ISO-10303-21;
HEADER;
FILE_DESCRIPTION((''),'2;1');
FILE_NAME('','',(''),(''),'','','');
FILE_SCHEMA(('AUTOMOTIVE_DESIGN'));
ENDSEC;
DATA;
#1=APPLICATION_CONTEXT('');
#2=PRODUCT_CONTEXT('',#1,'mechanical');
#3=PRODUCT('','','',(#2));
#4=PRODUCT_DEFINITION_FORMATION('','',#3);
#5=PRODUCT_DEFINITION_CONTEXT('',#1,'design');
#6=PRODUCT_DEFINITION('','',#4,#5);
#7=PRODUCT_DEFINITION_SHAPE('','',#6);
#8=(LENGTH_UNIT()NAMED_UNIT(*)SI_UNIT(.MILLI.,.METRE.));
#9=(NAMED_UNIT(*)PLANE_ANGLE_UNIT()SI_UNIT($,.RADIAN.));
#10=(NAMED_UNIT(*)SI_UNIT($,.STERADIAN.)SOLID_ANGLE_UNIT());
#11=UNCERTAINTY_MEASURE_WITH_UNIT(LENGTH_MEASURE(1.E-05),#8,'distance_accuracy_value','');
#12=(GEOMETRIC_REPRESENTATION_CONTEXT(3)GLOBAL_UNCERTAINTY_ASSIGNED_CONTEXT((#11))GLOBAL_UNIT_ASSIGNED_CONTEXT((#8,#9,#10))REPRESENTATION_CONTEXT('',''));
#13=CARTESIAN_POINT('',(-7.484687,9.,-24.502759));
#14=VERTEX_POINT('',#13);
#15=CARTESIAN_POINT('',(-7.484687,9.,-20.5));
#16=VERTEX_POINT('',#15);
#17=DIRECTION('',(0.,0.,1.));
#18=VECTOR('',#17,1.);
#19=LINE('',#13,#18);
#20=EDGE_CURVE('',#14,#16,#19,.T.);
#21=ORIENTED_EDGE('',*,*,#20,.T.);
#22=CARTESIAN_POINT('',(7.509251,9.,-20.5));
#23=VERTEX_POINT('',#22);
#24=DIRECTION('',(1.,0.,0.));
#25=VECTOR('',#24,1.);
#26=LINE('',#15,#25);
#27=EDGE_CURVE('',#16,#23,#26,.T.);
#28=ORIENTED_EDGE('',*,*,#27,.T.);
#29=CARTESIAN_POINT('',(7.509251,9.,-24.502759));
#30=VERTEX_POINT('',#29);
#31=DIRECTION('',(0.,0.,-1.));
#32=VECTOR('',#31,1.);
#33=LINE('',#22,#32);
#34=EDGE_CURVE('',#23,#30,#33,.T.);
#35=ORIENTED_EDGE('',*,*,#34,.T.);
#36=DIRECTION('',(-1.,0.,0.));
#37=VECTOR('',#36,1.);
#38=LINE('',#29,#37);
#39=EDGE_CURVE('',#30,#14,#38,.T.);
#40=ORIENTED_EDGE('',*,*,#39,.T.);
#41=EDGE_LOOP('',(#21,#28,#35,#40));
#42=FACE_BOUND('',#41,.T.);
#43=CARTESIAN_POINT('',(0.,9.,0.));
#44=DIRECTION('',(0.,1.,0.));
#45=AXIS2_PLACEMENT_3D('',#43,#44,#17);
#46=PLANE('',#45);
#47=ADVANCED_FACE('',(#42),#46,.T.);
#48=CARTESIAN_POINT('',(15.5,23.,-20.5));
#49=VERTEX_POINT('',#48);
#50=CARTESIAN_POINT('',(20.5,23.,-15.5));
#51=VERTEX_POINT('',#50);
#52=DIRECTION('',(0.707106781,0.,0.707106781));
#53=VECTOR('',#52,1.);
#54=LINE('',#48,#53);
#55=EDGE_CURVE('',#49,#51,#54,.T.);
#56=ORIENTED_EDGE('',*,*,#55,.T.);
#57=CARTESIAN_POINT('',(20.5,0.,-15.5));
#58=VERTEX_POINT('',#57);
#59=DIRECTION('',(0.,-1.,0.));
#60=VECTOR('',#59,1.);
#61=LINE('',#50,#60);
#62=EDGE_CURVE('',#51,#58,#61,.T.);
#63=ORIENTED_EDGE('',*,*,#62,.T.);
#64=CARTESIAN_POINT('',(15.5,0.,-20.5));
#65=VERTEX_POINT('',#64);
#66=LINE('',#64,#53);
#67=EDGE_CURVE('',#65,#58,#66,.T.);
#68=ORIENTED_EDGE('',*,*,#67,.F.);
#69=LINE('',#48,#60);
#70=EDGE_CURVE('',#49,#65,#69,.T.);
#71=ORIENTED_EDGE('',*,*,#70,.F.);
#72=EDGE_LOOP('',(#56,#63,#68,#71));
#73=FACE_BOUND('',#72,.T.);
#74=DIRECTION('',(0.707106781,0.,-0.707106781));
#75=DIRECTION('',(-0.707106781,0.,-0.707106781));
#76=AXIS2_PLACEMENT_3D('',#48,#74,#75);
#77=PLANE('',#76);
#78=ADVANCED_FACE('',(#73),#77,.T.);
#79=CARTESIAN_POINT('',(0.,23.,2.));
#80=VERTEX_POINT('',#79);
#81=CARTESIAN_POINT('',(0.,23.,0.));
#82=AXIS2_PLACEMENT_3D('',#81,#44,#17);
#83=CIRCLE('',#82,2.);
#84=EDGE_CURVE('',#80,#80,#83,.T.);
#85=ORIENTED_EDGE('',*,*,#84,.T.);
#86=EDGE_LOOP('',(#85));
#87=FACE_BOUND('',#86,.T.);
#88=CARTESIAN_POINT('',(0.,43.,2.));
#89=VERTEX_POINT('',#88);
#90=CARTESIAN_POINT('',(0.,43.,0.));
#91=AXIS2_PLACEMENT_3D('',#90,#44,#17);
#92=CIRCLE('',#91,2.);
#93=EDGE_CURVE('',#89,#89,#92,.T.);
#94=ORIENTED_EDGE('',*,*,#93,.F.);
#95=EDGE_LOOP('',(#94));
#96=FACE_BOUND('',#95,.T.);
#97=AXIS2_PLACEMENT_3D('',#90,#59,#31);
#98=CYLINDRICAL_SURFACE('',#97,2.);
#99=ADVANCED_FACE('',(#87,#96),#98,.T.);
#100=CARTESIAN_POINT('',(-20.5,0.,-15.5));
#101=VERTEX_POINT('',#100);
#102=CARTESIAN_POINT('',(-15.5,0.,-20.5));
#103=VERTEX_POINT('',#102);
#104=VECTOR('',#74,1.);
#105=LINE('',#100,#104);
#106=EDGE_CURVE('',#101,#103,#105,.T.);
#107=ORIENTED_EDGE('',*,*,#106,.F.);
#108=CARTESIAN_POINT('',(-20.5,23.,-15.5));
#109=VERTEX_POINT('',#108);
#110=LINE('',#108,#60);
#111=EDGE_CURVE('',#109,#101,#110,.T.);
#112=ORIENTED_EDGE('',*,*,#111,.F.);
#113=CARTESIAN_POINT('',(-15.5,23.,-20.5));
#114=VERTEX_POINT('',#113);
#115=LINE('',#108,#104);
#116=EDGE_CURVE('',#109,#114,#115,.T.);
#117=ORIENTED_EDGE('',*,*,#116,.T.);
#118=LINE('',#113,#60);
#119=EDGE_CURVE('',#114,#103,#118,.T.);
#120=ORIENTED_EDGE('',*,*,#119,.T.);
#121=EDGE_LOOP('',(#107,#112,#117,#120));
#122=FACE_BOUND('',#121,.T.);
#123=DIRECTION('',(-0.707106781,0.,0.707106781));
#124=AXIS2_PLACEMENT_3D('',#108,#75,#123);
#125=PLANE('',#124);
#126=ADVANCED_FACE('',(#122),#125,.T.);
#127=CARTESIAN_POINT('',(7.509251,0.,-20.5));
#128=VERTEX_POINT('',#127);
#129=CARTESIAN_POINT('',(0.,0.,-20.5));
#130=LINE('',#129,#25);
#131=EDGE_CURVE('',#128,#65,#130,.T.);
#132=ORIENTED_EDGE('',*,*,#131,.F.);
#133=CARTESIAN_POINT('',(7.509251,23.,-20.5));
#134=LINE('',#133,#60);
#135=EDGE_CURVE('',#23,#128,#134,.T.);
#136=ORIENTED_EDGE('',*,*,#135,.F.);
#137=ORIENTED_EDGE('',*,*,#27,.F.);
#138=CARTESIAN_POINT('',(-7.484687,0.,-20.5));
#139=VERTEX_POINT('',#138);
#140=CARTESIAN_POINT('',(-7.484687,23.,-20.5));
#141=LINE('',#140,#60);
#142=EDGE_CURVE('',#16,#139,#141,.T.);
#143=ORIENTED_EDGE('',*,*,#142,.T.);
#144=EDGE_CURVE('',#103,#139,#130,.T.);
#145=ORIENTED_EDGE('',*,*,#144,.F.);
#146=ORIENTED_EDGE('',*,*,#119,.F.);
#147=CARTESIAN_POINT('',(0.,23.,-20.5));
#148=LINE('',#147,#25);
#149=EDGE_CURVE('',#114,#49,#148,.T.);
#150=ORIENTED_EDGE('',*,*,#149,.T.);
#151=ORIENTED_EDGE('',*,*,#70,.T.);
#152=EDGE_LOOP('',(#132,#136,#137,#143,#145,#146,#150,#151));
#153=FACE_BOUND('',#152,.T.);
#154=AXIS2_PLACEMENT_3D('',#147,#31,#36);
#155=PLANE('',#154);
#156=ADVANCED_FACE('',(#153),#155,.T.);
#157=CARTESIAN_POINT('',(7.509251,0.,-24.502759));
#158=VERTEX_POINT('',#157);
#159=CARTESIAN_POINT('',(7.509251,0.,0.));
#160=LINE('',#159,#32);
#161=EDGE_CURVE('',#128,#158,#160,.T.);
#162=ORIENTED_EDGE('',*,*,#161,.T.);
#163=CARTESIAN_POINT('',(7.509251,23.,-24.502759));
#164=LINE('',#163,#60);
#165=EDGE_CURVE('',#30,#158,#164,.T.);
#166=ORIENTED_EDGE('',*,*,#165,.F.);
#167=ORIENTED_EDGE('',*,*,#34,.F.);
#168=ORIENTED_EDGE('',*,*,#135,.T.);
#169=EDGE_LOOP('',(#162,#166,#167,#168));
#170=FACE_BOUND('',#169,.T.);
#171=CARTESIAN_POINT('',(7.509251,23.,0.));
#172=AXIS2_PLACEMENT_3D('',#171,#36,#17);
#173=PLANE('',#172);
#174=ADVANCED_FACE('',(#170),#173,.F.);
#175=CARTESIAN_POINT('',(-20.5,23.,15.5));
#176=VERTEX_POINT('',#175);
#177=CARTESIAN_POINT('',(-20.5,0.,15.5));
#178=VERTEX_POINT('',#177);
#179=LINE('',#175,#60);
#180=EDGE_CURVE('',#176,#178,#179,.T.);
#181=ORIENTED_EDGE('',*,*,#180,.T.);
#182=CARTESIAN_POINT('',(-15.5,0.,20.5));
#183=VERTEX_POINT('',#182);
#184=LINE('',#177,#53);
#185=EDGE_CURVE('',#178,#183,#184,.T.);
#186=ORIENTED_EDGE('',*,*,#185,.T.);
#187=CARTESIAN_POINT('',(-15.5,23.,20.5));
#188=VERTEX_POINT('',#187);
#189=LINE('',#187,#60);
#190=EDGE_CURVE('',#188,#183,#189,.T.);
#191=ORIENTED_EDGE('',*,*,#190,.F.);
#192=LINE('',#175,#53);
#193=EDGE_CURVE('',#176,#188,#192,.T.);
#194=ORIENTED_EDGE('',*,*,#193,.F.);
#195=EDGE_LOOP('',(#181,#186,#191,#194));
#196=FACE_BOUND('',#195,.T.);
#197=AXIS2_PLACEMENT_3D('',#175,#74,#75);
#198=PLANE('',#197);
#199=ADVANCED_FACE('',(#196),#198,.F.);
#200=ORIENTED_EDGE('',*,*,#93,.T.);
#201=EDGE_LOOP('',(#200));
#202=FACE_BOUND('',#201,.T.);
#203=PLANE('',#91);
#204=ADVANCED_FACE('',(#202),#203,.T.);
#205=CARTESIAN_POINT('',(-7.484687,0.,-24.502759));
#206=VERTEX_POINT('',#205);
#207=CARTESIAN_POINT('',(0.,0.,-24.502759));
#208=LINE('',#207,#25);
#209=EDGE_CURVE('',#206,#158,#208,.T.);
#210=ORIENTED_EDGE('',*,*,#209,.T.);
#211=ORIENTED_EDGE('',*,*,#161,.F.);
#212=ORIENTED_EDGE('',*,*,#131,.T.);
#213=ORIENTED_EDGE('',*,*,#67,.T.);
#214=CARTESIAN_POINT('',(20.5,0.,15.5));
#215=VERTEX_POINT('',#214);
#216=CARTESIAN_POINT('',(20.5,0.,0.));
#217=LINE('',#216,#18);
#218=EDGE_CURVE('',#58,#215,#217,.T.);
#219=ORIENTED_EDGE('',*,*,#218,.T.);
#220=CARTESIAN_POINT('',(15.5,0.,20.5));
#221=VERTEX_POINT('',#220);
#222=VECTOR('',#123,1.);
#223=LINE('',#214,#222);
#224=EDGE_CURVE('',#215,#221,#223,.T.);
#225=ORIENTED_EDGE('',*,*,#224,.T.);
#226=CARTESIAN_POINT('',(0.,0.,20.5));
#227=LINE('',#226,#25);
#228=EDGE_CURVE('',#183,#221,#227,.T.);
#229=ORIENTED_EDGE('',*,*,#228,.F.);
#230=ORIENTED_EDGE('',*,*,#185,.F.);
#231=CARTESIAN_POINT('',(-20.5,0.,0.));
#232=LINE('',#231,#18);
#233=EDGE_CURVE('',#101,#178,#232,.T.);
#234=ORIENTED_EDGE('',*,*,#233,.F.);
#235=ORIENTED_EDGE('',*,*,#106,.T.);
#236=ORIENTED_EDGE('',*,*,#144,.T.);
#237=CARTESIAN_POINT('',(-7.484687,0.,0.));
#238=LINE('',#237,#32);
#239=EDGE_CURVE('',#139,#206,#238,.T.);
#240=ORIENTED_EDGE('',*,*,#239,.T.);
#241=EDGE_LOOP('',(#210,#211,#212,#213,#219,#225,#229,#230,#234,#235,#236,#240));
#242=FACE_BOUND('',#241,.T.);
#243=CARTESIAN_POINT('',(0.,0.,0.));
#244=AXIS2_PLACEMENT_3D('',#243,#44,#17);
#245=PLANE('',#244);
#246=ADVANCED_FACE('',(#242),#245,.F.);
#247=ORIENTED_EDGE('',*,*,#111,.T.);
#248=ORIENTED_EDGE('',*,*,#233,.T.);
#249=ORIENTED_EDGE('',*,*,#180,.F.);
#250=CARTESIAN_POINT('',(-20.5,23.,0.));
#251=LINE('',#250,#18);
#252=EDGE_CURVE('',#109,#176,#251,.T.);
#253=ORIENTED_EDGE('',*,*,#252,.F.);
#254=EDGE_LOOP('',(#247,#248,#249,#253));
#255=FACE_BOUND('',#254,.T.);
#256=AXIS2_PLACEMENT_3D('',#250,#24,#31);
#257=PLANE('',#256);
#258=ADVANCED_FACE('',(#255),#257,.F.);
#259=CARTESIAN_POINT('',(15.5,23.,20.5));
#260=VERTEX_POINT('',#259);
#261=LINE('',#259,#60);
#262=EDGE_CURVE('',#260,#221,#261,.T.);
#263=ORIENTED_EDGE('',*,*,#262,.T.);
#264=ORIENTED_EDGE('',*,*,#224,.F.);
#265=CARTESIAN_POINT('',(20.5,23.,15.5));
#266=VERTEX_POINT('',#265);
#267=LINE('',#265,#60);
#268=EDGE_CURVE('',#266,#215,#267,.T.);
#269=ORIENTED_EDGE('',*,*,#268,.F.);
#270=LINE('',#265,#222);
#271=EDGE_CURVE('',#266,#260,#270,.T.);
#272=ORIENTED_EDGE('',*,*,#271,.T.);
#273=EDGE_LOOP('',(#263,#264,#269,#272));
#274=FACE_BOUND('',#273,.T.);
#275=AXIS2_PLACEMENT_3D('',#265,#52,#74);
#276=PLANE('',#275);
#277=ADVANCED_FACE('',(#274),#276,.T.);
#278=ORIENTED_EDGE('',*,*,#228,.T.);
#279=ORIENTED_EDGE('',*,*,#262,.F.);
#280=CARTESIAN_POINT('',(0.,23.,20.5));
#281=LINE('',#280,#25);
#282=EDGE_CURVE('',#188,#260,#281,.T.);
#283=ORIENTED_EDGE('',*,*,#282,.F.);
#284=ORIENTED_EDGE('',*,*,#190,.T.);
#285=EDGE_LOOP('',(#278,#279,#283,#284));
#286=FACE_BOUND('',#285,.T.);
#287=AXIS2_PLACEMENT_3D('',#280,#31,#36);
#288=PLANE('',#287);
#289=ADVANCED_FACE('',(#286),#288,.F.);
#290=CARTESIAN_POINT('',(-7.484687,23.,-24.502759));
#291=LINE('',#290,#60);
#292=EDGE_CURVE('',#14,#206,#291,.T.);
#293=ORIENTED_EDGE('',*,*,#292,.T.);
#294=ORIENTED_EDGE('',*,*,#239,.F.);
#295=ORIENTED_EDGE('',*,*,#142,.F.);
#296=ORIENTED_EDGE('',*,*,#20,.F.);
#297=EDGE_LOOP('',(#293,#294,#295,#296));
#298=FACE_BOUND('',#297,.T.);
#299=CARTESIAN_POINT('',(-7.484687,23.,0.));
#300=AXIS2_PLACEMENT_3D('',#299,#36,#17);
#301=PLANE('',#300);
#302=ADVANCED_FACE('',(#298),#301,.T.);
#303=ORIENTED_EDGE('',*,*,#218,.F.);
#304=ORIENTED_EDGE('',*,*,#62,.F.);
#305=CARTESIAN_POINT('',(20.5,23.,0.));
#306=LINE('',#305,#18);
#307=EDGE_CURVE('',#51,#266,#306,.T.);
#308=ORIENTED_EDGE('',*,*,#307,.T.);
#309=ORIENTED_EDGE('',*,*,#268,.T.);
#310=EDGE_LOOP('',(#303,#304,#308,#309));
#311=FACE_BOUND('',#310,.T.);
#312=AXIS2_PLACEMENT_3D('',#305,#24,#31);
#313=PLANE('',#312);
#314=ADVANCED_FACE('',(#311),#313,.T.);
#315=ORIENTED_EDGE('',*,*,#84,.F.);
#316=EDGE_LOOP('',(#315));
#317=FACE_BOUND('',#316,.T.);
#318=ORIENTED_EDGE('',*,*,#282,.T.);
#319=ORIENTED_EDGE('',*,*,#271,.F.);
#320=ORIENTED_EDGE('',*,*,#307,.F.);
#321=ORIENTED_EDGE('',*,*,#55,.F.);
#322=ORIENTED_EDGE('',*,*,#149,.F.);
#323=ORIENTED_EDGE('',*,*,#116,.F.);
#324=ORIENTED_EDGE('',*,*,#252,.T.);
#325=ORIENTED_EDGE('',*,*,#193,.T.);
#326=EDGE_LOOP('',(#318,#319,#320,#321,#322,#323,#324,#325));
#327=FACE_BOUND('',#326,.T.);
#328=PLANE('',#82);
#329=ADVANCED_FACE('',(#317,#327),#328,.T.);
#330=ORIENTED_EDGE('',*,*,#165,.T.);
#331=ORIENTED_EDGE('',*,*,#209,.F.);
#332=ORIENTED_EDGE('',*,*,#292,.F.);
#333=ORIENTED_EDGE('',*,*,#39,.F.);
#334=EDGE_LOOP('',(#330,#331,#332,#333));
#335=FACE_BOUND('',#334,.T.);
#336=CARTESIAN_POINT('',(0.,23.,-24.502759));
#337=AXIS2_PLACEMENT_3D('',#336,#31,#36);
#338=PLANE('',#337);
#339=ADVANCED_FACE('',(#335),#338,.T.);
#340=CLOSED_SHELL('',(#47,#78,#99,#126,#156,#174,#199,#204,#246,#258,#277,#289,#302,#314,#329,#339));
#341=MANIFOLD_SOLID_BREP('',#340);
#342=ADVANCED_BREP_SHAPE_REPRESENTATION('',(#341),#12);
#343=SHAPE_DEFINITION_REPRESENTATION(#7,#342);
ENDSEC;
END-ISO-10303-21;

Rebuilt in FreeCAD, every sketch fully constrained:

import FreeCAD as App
import Part
import Sketcher

V = App.Vector
Q = App.Units.Quantity


def add_polygon(sketch, points):
    """Adds a closed chain of lines whose ends are joined by coincident constraints."""
    first, n = sketch.GeometryCount, len(points)
    for a, b in zip(points, points[1:] + points[:1]):
        sketch.addGeometry(Part.LineSegment(App.Vector(*a, 0), App.Vector(*b, 0)), False)
    for i in range(n):
        sketch.addConstraint(Sketcher.Constraint("Coincident", first + i, 2, first + (i + 1) % n, 1))

doc = App.newDocument("Part")
body = doc.addObject("PartDesign::Body", "Body")

sketch1 = doc.addObject("Sketcher::SketchObject", "Sketch")
body.addObject(sketch1)
sketch1.AttachmentSupport = (doc.XZ_Plane, [""])
sketch1.MapMode = "FlatFace"
add_polygon(sketch1, [(-20.5, -20.5), (-20.5, 20.5), (20.5, 20.5), (20.5, -20.5), (7.5, -20.5), (7.5, -24.5), (-7.5, -24.5), (-7.5, -20.5)])
sketch1.addConstraint([
    Sketcher.Constraint("Vertical", 0),
    Sketcher.Constraint("Horizontal", 1),
    Sketcher.Constraint("Vertical", 2),
    Sketcher.Constraint("Horizontal", 3),
    Sketcher.Constraint("Vertical", 4),
    Sketcher.Constraint("Horizontal", 5),
    Sketcher.Constraint("Vertical", 6),
    Sketcher.Constraint("Horizontal", 7),
    Sketcher.Constraint("Symmetric", 0, 2, 2, 2, -1, 1),
    Sketcher.Constraint("Horizontal", 3, 2, 6, 2),
    Sketcher.Constraint("Equal", 1, 0),
    Sketcher.Constraint("DistanceX", 1, 1, 1, 2, Q("41 mm")),
    Sketcher.Constraint("DistanceX", 3, 2, 3, 1, Q("12.990749 mm")),
    Sketcher.Constraint("DistanceX", 5, 2, 5, 1, Q("14.993938 mm")),
    Sketcher.Constraint("DistanceY", 4, 2, 4, 1, Q("4.002759 mm")),
])
pad1 = doc.addObject("PartDesign::Pad", "Pad")
body.addObject(pad1)
pad1.Profile = sketch1
pad1.Length = 23
pad1.Reversed = True

sketch2 = doc.addObject("Sketcher::SketchObject", "Sketch001")
body.addObject(sketch2)
sketch2.AttachmentSupport = (doc.XZ_Plane, [""])
sketch2.MapMode = "FlatFace"
add_polygon(sketch2, [(-16, -20), (-20, -20), (-20, -16)])
sketch2.addConstraint([
    Sketcher.Constraint("Horizontal", 0),
    Sketcher.Constraint("Vertical", 1),
    Sketcher.Constraint("Equal", 0, 1),
    Sketcher.Constraint("DistanceX", 0, 2, 0, 1, Q("5 mm")),
    Sketcher.Constraint("DistanceX", 0, 2, -1, 1, Q("20.5 mm")),
    Sketcher.Constraint("DistanceY", 0, 2, -1, 1, Q("20.5 mm")),
])
pocket1 = doc.addObject("PartDesign::Pocket", "Pocket")
body.addObject(pocket1)
pocket1.Profile = sketch2
pocket1.Length = 23

sketch3 = doc.addObject("Sketcher::SketchObject", "Sketch002")
body.addObject(sketch3)
sketch3.AttachmentSupport = (doc.XZ_Plane, [""])
sketch3.MapMode = "FlatFace"
add_polygon(sketch3, [(-20, 16), (-20, 20), (-16, 20)])
add_polygon(sketch3, [(16, 20), (20, 20), (20, 16)])
add_polygon(sketch3, [(20, -16), (20, -20), (16, -20)])
sketch3.addConstraint([
    Sketcher.Constraint("Vertical", 0),
    Sketcher.Constraint("Horizontal", 1),
    Sketcher.Constraint("Horizontal", 3),
    Sketcher.Constraint("Vertical", 4),
    Sketcher.Constraint("Vertical", 6),
    Sketcher.Constraint("Horizontal", 7),
    Sketcher.Constraint("Symmetric", 0, 2, 6, 2, -1, 1),
    Sketcher.Constraint("Symmetric", 0, 2, 3, 2, -2),
    Sketcher.Constraint("Perpendicular", 2, 5),
    Sketcher.Constraint("Perpendicular", 5, 8),
    Sketcher.Constraint("Horizontal", 2, 2, 4, 2),
    Sketcher.Constraint("Vertical", 5, 2, 7, 2),
    Sketcher.Constraint("Equal", 1, 3),
    Sketcher.Constraint("DistanceX", 1, 1, 1, 2, Q("5 mm")),
    Sketcher.Constraint("DistanceX", 1, 2, 3, 2, Q("36 mm")),
    Sketcher.Constraint("DistanceY", 6, 2, 4, 2, Q("36 mm")),
])
pocket2 = doc.addObject("PartDesign::Pocket", "Pocket001")
body.addObject(pocket2)
pocket2.Profile = sketch3
pocket2.Length = 23

sketch4 = doc.addObject("Sketcher::SketchObject", "Sketch003")
body.addObject(sketch4)
sketch4.AttachmentSupport = (doc.XZ_Plane, [""])
sketch4.MapMode = "FlatFace"
sketch4.AttachmentOffset = App.Placement(V(0, 0, -23), App.Rotation())
add_polygon(sketch4, [(-7.5, -24.5), (-7.5, -20.5), (7.5, -20.5), (7.5, -24.5)])
sketch4.addConstraint([
    Sketcher.Constraint("Vertical", 0),
    Sketcher.Constraint("Horizontal", 1),
    Sketcher.Constraint("Vertical", 2),
    Sketcher.Constraint("Horizontal", 3),
    Sketcher.Constraint("DistanceY", 0, 2, -1, 1, Q("20.5 mm")),
    Sketcher.Constraint("DistanceX", 1, 1, 1, 2, Q("14.993938 mm")),
    Sketcher.Constraint("DistanceY", 0, 1, 0, 2, Q("4.002759 mm")),
    Sketcher.Constraint("DistanceX", -1, 1, 1, 2, Q("7.509251 mm")),
])
pocket3 = doc.addObject("PartDesign::Pocket", "Pocket002")
body.addObject(pocket3)
pocket3.Profile = sketch4
pocket3.Length = 14
pocket3.Reversed = True

sketch5 = doc.addObject("Sketcher::SketchObject", "Sketch004")
body.addObject(sketch5)
sketch5.AttachmentSupport = (doc.XZ_Plane, [""])
sketch5.MapMode = "FlatFace"
sketch5.AttachmentOffset = App.Placement(V(0, 0, -23), App.Rotation())
sketch5.addGeometry(Part.Circle(V(0, 0, 0), V(0, 0, 1), 2), False)
sketch5.addConstraint([
    Sketcher.Constraint("Coincident", 0, 3, -1, 1),
    Sketcher.Constraint("Diameter", 0, Q("4 mm")),
])
pad2 = doc.addObject("PartDesign::Pad", "Pad001")
body.addObject(pad2)
pad2.Profile = sketch5
pad2.Length = 20
pad2.Reversed = True

doc.recompute()
